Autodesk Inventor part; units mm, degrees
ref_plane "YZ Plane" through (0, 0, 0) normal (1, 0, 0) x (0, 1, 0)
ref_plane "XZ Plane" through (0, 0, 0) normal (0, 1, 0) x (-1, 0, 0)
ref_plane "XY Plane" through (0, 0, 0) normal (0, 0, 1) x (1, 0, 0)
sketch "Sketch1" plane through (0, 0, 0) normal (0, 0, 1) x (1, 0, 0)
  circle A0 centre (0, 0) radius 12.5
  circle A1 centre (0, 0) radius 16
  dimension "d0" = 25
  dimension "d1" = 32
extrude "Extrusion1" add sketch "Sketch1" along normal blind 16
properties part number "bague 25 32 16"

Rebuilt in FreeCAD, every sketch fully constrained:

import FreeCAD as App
import Part
import Sketcher

V = App.Vector
Q = App.Units.Quantity

doc = App.newDocument("Part")
body = doc.addObject("PartDesign::Body", "Body")

# Sketch on XY plane
sketch1 = body.newObject("Sketcher::SketchObject", "Sketch")
sketch1.AttachmentSupport = (doc.getObject("XY_Plane"), [""])
sketch1.MapMode = "FlatFace"
sketch1.addGeometry([
    Part.Circle(V(0, 0, 0), V(0, 0, 1), 16),
    Part.Circle(V(0, 0, 0), V(0, 0, 1), 12),
], False)
sketch1.addConstraint([
    Sketcher.Constraint("Coincident", 0, 3, -1, 1),
    Sketcher.Constraint("Coincident", 1, 3, -1, 1),
    Sketcher.Constraint("Diameter", 0, Q("32 mm")),
    Sketcher.Constraint("Diameter", 1, Q("25 mm")),
])
pad1 = body.newObject("PartDesign::Pad", "Pad")
pad1.Profile = sketch1
pad1.Length = 16

doc.recompute()
